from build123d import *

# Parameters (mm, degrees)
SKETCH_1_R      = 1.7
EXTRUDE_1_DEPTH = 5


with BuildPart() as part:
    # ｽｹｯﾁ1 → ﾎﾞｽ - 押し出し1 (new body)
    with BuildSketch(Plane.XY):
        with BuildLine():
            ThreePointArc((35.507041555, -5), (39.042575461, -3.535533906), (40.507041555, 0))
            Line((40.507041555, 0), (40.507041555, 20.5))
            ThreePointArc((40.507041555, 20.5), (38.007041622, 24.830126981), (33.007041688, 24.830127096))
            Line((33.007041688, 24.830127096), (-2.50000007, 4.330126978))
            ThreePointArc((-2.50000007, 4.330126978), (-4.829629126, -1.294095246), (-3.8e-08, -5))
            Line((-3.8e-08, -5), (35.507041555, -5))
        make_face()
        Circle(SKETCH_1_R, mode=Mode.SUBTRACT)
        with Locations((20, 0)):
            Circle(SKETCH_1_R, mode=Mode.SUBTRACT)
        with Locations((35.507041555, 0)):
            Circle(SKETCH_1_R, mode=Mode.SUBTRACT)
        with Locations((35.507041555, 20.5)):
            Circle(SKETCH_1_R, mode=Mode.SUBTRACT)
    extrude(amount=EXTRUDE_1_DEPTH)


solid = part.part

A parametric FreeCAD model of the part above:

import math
import FreeCAD as App
import Part
import Sketcher
from FreeCAD import Vector
Q = App.Units.Quantity

doc = App.newDocument("Part")
body = doc.addObject("PartDesign::Body", "Body")

sketch1 = body.newObject("Sketcher::SketchObject", "Sketch")
sketch1.AttachmentSupport = (doc.getObject("XY_Plane"), [""])
sketch1.MapMode = "FlatFace"
sketch1.addGeometry([
    Part.ArcOfCircle(Part.Circle(Vector(35.5, 0, 0), Vector(0, 0, 1), 5), math.radians(-90), math.radians(0)),
    Part.LineSegment(Vector(40.5, 0, 0), Vector(40.5, 20.5, 0)),
    Part.ArcOfCircle(Part.Circle(Vector(35.5, 20.5, 0), Vector(0, 0, 1), 5), math.radians(0), math.radians(120)),
    Part.LineSegment(Vector(33, 24.8, 0), Vector(-2.5, 4.3, 0)),
    Part.ArcOfCircle(Part.Circle(Vector(0, 0, 0), Vector(0, 0, 1), 5), math.radians(120), math.radians(270)),
    Part.LineSegment(Vector(0, -5, 0), Vector(35.5, -5, 0)),
    Part.Circle(Vector(0, 0, 0), Vector(0, 0, 1), 1.7),
    Part.Circle(Vector(20, 0, 0), Vector(0, 0, 1), 1.7),
    Part.Circle(Vector(35.5, 0, 0), Vector(0, 0, 1), 1.7),
    Part.Circle(Vector(35.5, 20.5, 0), Vector(0, 0, 1), 1.7),
], False)
sketch1.addConstraint([
    Sketcher.Constraint("Tangent", 0, 2, 1, 1),
    Sketcher.Constraint("Tangent", 1, 2, 2, 1),
    Sketcher.Constraint("Tangent", 2, 2, 3, 1),
    Sketcher.Constraint("Tangent", 3, 2, 4, 1),
    Sketcher.Constraint("Tangent", 4, 2, 5, 1),
    Sketcher.Constraint("Tangent", 5, 2, 0, 1),
    Sketcher.Constraint("Vertical", 1),
    Sketcher.Constraint("Horizontal", 5),
    Sketcher.Constraint("Coincident", 4, 3, -1, 1),
    Sketcher.Constraint("Coincident", 6, 3, -1, 1),
    Sketcher.Constraint("Coincident", 8, 3, 0, 3),
    Sketcher.Constraint("Coincident", 9, 3, 2, 3),
    Sketcher.Constraint("Equal", 0, 2),
    Sketcher.Constraint("Equal", 2, 4),
    Sketcher.Constraint("Equal", 6, 7),
    Sketcher.Constraint("Equal", 7, 8),
    Sketcher.Constraint("Equal", 8, 9),
    Sketcher.Constraint("PointOnObject", 7, 3, -1),
    Sketcher.Constraint("Radius", 0, Q("5 mm")),
    Sketcher.Constraint("Diameter", 6, Q("3.4 mm")),
    Sketcher.Constraint("Angle", 3, Q("-150 deg")),
    Sketcher.Constraint("Distance", 3, Q("41 mm")),
    Sketcher.Constraint("DistanceX", -1, 1, 7, 3, Q("20 mm")),
])
pad1 = body.newObject("PartDesign::Pad", "Pad")
pad1.Profile = sketch1
pad1.Length = 5

doc.recompute()
